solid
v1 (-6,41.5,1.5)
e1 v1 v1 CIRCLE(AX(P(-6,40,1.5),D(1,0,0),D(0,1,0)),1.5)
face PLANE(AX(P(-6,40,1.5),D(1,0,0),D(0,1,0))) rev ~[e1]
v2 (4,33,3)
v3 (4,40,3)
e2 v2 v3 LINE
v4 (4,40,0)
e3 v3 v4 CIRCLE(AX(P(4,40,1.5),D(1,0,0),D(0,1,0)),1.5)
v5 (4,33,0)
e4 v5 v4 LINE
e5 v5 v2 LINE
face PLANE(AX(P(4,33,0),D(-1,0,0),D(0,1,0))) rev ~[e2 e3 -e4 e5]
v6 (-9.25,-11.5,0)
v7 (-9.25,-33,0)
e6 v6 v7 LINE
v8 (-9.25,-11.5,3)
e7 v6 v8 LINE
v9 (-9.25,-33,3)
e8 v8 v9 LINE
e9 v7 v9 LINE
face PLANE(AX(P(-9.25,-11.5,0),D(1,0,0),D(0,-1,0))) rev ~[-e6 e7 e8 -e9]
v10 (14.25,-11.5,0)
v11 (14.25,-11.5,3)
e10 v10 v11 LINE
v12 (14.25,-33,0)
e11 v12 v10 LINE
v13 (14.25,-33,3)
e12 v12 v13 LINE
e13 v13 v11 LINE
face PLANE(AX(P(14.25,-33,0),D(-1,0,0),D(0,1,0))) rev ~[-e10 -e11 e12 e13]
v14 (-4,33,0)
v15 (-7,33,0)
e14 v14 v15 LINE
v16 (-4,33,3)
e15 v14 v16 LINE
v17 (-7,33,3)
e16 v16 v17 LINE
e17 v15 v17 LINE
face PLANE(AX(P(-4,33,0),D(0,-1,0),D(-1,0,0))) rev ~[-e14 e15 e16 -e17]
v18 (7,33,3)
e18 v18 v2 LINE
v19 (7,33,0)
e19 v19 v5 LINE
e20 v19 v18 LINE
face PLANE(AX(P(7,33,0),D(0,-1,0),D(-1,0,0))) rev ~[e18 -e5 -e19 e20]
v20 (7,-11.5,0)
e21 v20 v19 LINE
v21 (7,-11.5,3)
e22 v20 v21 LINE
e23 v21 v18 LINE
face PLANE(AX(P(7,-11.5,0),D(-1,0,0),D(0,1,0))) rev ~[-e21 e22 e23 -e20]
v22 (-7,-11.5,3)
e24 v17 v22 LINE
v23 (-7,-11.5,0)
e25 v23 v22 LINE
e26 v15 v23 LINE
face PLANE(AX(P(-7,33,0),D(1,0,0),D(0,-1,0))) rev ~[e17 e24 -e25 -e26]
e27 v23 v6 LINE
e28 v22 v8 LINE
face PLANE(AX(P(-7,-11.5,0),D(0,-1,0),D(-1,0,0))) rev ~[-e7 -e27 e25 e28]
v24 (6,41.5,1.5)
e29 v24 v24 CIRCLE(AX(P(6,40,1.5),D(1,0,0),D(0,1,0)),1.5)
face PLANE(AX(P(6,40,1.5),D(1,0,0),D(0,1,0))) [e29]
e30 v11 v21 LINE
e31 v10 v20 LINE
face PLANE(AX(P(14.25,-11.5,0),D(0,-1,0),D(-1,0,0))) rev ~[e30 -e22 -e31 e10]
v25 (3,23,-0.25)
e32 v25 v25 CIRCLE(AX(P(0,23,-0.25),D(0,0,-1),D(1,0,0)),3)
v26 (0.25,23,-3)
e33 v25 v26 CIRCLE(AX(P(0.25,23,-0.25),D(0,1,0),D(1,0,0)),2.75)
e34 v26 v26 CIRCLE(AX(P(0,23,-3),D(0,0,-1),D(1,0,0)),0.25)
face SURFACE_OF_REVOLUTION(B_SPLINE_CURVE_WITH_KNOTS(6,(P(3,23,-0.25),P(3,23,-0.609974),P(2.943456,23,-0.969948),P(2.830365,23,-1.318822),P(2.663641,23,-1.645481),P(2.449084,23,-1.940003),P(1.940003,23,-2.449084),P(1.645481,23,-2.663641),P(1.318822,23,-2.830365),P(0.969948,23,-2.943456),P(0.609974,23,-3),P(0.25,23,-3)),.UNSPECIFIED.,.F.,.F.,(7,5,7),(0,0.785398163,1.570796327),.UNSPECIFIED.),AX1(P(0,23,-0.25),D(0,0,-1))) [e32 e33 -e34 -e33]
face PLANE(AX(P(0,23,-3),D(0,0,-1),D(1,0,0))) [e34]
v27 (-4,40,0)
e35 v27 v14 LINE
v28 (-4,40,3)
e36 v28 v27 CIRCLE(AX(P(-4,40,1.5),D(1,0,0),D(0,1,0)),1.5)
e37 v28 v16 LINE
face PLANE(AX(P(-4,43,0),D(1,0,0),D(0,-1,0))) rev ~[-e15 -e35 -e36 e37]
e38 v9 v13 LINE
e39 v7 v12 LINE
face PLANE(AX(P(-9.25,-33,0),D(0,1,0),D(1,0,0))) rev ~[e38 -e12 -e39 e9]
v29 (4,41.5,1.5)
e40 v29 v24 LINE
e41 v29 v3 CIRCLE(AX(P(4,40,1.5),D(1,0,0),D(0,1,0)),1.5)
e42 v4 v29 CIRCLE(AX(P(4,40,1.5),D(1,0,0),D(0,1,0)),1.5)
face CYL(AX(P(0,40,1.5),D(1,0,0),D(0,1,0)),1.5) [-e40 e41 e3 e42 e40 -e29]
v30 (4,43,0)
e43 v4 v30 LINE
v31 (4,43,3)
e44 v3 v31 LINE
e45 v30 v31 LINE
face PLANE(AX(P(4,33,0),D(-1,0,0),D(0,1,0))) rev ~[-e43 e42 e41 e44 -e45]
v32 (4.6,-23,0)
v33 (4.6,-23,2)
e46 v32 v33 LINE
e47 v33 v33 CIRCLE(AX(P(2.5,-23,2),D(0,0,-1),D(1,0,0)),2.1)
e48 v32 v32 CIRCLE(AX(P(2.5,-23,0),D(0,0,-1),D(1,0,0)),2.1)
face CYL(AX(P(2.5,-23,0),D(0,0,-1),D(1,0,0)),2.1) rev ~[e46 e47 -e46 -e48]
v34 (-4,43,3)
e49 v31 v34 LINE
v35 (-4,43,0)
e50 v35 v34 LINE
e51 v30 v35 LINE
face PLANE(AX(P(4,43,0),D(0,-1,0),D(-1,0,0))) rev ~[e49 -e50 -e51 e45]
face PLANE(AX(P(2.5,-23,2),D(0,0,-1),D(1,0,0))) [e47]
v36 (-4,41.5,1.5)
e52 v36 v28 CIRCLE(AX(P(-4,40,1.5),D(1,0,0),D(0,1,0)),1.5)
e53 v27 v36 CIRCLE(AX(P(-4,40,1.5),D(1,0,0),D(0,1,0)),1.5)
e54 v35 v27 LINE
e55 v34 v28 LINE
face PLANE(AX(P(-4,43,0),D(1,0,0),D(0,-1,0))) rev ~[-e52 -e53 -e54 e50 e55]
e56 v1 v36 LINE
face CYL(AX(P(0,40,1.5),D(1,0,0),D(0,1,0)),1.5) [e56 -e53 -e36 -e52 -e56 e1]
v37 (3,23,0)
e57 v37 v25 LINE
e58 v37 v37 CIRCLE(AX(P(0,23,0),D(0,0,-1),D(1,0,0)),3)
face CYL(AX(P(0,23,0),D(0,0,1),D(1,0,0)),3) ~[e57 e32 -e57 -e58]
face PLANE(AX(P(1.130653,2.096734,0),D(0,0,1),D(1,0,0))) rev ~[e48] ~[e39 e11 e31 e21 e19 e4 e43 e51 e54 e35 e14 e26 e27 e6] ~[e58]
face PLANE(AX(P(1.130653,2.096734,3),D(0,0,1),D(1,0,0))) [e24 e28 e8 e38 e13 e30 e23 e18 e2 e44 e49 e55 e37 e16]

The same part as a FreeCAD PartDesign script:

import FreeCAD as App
import Part
import Sketcher

V = App.Vector


def edges_at(feature, points):
    """Names of the edges that pass closest to the given points."""
    edges = feature.Shape.Edges
    near = lambda p: min(range(len(edges)), key=lambda i: edges[i].distToShape(Part.Vertex(*p))[0])
    return sorted({f"Edge{near(p) + 1}" for p in points})

doc = App.newDocument("Part")
body = doc.addObject("PartDesign::Body", "Body")

# Sketch on XY plane
sketch1 = body.newObject("Sketcher::SketchObject", "Sketch")
sketch1.AttachmentSupport = (doc.getObject("XY_Plane"), [""])
sketch1.MapMode = "FlatFace"
sketch1.addGeometry([
    Part.LineSegment(V(-9.2, -33, 0), V(14.2, -33, 0)),  # 0
    Part.LineSegment(V(14.2, -33, 0), V(14.2, -11.5, 0)),  # 1
    Part.LineSegment(V(14.2, -11.5, 0), V(7, -11.5, 0)),  # 2
    Part.LineSegment(V(7, -11.5, 0), V(7, 33, 0)),  # 3
    Part.LineSegment(V(7, 33, 0), V(4, 33, 0)),  # 4
    Part.LineSegment(V(4, 33, 0), V(4, 43, 0)),  # 5
    Part.LineSegment(V(4, 43, 0), V(-4, 43, 0)),  # 6
    Part.LineSegment(V(-4, 43, 0), V(-4, 33, 0)),  # 7
    Part.LineSegment(V(-4, 33, 0), V(-7, 33, 0)),  # 8
    Part.LineSegment(V(-7, 33, 0), V(-7, -11.5, 0)),  # 9
    Part.LineSegment(V(-7, -11.5, 0), V(-9.2, -11.5, 0)),  # 10
    Part.LineSegment(V(-9.2, -11.5, 0), V(-9.2, -33, 0)),  # 11
], False)
sketch1.addConstraint([
    Sketcher.Constraint("Coincident", 0, 2, 1, 1),
    Sketcher.Constraint("Coincident", 1, 2, 2, 1),
    Sketcher.Constraint("Coincident", 2, 2, 3, 1),
    Sketcher.Constraint("Coincident", 3, 2, 4, 1),
    Sketcher.Constraint("Coincident", 4, 2, 5, 1),
    Sketcher.Constraint("Coincident", 5, 2, 6, 1),
    Sketcher.Constraint("Coincident", 6, 2, 7, 1),
    Sketcher.Constraint("Coincident", 7, 2, 8, 1),
    Sketcher.Constraint("Coincident", 8, 2, 9, 1),
    Sketcher.Constraint("Coincident", 9, 2, 10, 1),
    Sketcher.Constraint("Coincident", 10, 2, 11, 1),
    Sketcher.Constraint("Coincident", 11, 2, 0, 1),
    Sketcher.Constraint("Horizontal", 0),
    Sketcher.Constraint("Vertical", 1),
    Sketcher.Constraint("Horizontal", 2),
    Sketcher.Constraint("Vertical", 3),
    Sketcher.Constraint("Horizontal", 4),
    Sketcher.Constraint("Vertical", 5),
    Sketcher.Constraint("Horizontal", 6),
    Sketcher.Constraint("Vertical", 7),
    Sketcher.Constraint("Horizontal", 8),
    Sketcher.Constraint("Vertical", 9),
    Sketcher.Constraint("Horizontal", 10),
    Sketcher.Constraint("Vertical", 11),
    Sketcher.Constraint("Symmetric", 4, 2, 7, 2, -2),
    Sketcher.Constraint("Symmetric", 2, 2, 9, 2, -2),
    Sketcher.Constraint("DistanceX", 4, 2, 4, 1, 3.0),
    Sketcher.Constraint("DistanceX", 6, 2, 6, 1, 8.0),
    Sketcher.Constraint("DistanceY", 5, 1, 5, 2, 10.0),
    Sketcher.Constraint("DistanceX", 0, 1, 0, 2, 23.5),
    Sketcher.Constraint("DistanceY", 1, 1, 1, 2, 21.5),
    Sketcher.Constraint("DistanceY", 3, 1, 3, 2, 44.5),
    Sketcher.Constraint("DistanceY", 0, 2, -1, 1, 33.0),
    Sketcher.Constraint("DistanceX", 2, 2, 2, 1, 7.25),
])
pad1 = body.newObject("PartDesign::Pad", "Pad")
pad1.Profile = sketch1
pad1.Length = 3

# Sketch on YZ plane
sketch2 = body.newObject("Sketcher::SketchObject", "Sketch001")
sketch2.AttachmentSupport = (doc.getObject("YZ_Plane"), [""])
sketch2.MapMode = "FlatFace"
sketch2.addGeometry(Part.Circle(V(40, 1.5, 0), V(0, 0, 1), 1.5), False)
sketch2.addConstraint([
    Sketcher.Constraint("Diameter", 0, 3.0),
    Sketcher.Constraint("DistanceX", -1, 1, 0, 3, 40.0),
    Sketcher.Constraint("DistanceY", -1, 1, 0, 3, 1.5),
])
pad2 = body.newObject("PartDesign::Pad", "Pad001")
pad2.Profile = sketch2
pad2.Length = 12
pad2.Midplane = True

# Sketch on XY plane
sketch3 = body.newObject("Sketcher::SketchObject", "Sketch002")
sketch3.AttachmentSupport = (doc.getObject("XY_Plane"), [""])
sketch3.MapMode = "FlatFace"
sketch3.addGeometry(Part.Circle(V(2.5, -23, 0), V(0, 0, 1), 2.1), False)
sketch3.addConstraint([
    Sketcher.Constraint("Diameter", 0, 4.2),
    Sketcher.Constraint("DistanceY", 0, 3, -1, 1, 23.0),
    Sketcher.Constraint("DistanceX", -1, 1, 0, 3, 2.5),
])
pocket1 = body.newObject("PartDesign::Pocket", "Pocket")
pocket1.Profile = sketch3
pocket1.Length = 2
pocket1.Reversed = True

# Sketch on XY plane
sketch4 = body.newObject("Sketcher::SketchObject", "Sketch003")
sketch4.AttachmentSupport = (doc.getObject("XY_Plane"), [""])
sketch4.MapMode = "FlatFace"
sketch4.addGeometry(Part.Circle(V(0, 23, 0), V(0, 0, 1), 3), False)
sketch4.addConstraint([
    Sketcher.Constraint("PointOnObject", 0, 3, -2),
    Sketcher.Constraint("Diameter", 0, 6.0),
    Sketcher.Constraint("DistanceY", -1, 1, 0, 3, 23.0),
])
pad3 = body.newObject("PartDesign::Pad", "Pad002")
pad3.Profile = sketch4
pad3.Length = 3
pad3.Reversed = True
doc.recompute()

fillet = body.newObject("PartDesign::Fillet", "Fillet")
fillet.Base = (pad3, edges_at(pad3, [(-3, 23, -3)]))
fillet.Radius = 2.75

doc.recompute()
